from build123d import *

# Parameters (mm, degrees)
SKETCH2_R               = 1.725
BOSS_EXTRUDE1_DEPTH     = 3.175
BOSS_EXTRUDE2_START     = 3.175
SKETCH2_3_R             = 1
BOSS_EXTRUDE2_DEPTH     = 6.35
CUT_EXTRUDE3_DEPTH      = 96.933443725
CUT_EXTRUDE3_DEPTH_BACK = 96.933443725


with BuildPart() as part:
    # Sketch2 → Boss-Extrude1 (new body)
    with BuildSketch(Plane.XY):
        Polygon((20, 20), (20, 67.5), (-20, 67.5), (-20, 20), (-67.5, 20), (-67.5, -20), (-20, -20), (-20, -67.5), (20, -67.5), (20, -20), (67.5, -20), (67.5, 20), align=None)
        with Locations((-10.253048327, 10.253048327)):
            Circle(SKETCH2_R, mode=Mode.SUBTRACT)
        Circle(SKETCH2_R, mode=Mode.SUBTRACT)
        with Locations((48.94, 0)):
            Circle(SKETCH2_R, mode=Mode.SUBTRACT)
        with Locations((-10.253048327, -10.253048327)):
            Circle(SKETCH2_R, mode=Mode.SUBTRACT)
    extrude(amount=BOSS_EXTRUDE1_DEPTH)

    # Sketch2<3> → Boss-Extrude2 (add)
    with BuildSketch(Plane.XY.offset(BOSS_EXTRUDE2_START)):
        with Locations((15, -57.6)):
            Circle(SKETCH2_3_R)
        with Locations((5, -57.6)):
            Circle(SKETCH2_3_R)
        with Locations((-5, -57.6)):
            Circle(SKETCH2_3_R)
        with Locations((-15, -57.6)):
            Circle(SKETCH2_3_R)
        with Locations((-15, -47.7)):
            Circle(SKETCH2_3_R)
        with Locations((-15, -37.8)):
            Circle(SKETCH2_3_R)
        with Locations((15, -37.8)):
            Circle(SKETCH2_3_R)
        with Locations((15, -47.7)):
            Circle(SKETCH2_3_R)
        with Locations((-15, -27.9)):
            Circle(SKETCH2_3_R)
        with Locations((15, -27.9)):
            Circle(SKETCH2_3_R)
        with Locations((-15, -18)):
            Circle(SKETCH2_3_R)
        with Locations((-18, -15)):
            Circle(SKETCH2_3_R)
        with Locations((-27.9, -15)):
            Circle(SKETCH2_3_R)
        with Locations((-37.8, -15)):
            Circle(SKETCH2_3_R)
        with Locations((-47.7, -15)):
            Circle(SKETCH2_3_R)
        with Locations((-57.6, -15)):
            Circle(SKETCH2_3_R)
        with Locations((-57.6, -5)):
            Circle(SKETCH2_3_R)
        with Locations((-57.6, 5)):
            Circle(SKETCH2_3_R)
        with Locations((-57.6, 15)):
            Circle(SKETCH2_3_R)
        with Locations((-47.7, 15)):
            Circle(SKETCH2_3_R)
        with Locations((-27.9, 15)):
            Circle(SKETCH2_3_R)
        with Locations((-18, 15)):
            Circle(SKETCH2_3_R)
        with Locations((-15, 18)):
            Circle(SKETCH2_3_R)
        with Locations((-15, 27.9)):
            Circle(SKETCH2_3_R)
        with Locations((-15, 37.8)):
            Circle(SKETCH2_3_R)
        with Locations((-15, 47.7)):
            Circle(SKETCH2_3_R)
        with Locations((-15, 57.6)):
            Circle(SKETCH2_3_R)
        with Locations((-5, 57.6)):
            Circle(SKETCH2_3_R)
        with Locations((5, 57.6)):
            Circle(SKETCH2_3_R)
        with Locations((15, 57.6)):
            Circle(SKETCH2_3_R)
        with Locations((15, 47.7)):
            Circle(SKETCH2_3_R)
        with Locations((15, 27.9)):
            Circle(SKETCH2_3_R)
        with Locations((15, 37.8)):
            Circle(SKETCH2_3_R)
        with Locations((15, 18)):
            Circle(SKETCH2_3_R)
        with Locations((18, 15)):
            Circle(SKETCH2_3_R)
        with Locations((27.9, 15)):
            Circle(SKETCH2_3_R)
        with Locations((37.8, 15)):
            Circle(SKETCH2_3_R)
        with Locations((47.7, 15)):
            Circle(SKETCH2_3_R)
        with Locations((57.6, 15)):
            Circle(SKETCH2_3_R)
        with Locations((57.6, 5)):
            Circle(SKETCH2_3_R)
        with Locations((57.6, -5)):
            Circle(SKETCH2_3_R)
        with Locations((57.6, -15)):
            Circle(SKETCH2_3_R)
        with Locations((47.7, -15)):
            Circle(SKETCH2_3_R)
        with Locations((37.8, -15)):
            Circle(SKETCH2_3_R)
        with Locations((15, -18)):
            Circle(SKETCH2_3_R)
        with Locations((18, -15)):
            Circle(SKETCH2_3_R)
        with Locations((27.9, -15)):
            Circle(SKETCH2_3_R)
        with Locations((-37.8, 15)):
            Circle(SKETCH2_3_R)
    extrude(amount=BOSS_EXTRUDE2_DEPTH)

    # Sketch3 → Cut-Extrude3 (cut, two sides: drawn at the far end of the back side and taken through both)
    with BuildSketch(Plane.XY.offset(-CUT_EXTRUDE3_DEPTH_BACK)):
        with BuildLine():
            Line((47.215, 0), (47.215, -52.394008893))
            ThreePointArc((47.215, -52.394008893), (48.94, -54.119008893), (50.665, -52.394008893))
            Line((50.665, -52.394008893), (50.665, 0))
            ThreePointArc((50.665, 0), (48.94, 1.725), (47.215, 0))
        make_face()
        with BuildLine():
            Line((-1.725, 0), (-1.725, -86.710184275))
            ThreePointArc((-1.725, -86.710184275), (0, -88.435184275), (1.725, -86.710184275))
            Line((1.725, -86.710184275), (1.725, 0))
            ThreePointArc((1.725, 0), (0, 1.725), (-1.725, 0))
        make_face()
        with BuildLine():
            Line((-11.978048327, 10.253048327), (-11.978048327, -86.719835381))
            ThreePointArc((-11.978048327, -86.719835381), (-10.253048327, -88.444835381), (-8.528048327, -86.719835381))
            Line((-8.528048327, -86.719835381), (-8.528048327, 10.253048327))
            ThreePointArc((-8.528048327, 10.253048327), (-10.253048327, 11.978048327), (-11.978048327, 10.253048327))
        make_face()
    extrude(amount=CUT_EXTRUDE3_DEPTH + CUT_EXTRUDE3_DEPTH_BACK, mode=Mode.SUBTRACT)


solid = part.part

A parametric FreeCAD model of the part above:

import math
import FreeCAD as App
import Part
import Sketcher
from FreeCAD import Vector
Q = App.Units.Quantity


def add_polygon(sketch, points):
    """Adds a closed chain of lines whose ends are joined by coincident constraints."""
    first, n = sketch.GeometryCount, len(points)
    for a, b in zip(points, points[1:] + points[:1]):
        sketch.addGeometry(Part.LineSegment(App.Vector(*a, 0), App.Vector(*b, 0)), False)
    for i in range(n):
        sketch.addConstraint(Sketcher.Constraint("Coincident", first + i, 2, first + (i + 1) % n, 1))

doc = App.newDocument("Part")
body = doc.addObject("PartDesign::Body", "Body")

# Sketch on XY plane
sketch1 = body.newObject("Sketcher::SketchObject", "Sketch")
sketch1.AttachmentSupport = (doc.getObject("XY_Plane"), [""])
sketch1.MapMode = "FlatFace"
add_polygon(sketch1, [(20, 20), (20, 67.5), (-20, 67.5), (-20, 20), (-67.5, 20), (-67.5, -20), (-20, -20), (-20, -67.5), (20, -67.5), (20, -20), (67.5, -20), (67.5, 20)])  # lines 0-11
sketch1.addGeometry(Part.Circle(Vector(-10.3, -10.3, 0), Vector(0, 0, 1), 1.7), False)  # 12
sketch1.addGeometry(Part.Circle(Vector(0, 0, 0), Vector(0, 0, 1), 1.7), False)  # 13
sketch1.addGeometry(Part.Circle(Vector(-10.3, 10.3, 0), Vector(0, 0, 1), 1.7), False)  # 14
sketch1.addGeometry(Part.Circle(Vector(48.9, 0, 0), Vector(0, 0, 1), 1.7), False)  # 15
sketch1.addConstraint(Sketcher.Constraint("Vertical", 0))
sketch1.addConstraint(Sketcher.Constraint("Horizontal", 1))
sketch1.addConstraint(Sketcher.Constraint("Vertical", 2))
sketch1.addConstraint(Sketcher.Constraint("Horizontal", 3))
sketch1.addConstraint(Sketcher.Constraint("Vertical", 4))
sketch1.addConstraint(Sketcher.Constraint("Horizontal", 5))
sketch1.addConstraint(Sketcher.Constraint("Vertical", 6))
sketch1.addConstraint(Sketcher.Constraint("Horizontal", 7))
sketch1.addConstraint(Sketcher.Constraint("Vertical", 8))
sketch1.addConstraint(Sketcher.Constraint("Horizontal", 9))
sketch1.addConstraint(Sketcher.Constraint("Vertical", 10))
sketch1.addConstraint(Sketcher.Constraint("Horizontal", 11))
sketch1.addConstraint(Sketcher.Constraint("Coincident", 13, 3, -1, 1))
sketch1.addConstraint(Sketcher.Constraint("Equal", 12, 13))
sketch1.addConstraint(Sketcher.Constraint("Equal", 13, 14))
sketch1.addConstraint(Sketcher.Constraint("Equal", 14, 15))
sketch1.addConstraint(Sketcher.Constraint("Symmetric", 0, 2, 6, 2, -1, 1))
sketch1.addConstraint(Sketcher.Constraint("Symmetric", 2, 2, 8, 2, -1, 1))
sketch1.addConstraint(Sketcher.Constraint("Symmetric", 4, 2, 10, 2, -1, 1))
sketch1.addConstraint(Sketcher.Constraint("Symmetric", 5, 2, 8, 2, -2))
sketch1.addConstraint(Sketcher.Constraint("Symmetric", 12, 3, 14, 3, -1))
sketch1.addConstraint(Sketcher.Constraint("PointOnObject", 15, 3, -1))
sketch1.addConstraint(Sketcher.Constraint("Equal", 11, 0))
sketch1.addConstraint(Sketcher.Constraint("Equal", 7, 4))
sketch1.addConstraint(Sketcher.Constraint("Diameter", 12, Q("3.45 mm")))
sketch1.addConstraint(Sketcher.Constraint("DistanceX", 1, 2, 1, 1, Q("40 mm")))
sketch1.addConstraint(Sketcher.Constraint("DistanceX", 3, 2, 3, 1, Q("47.5 mm")))
sketch1.addConstraint(Sketcher.Constraint("DistanceX", -1, 1, 15, 3, Q("48.94 mm")))
sketch1.addConstraint(Sketcher.Constraint("DistanceX", 12, 3, -1, 1, Q("10.253048 mm")))
sketch1.addConstraint(Sketcher.Constraint("DistanceY", 12, 3, -1, 1, Q("10.253048 mm")))
pad1 = body.newObject("PartDesign::Pad", "Pad")
pad1.Profile = sketch1
pad1.Length = 3.175

# Sketch on XY plane
sketch2 = body.newObject("Sketcher::SketchObject", "Sketch001")
sketch2.AttachmentSupport = (doc.getObject("XY_Plane"), [""])
sketch2.MapMode = "FlatFace"
sketch2.AttachmentOffset = App.Placement(Vector(0, 0, 3.175), App.Rotation())
sketch2.addGeometry(Part.Circle(Vector(15, -57.6, 0), Vector(0, 0, 1), 1), False)
sketch2.addGeometry(Part.Circle(Vector(5, -57.6, 0), Vector(0, 0, 1), 1), False)
sketch2.addGeometry(Part.Circle(Vector(-5, -57.6, 0), Vector(0, 0, 1), 1), False)
sketch2.addGeometry(Part.Circle(Vector(-15, -57.6, 0), Vector(0, 0, 1), 1), False)
sketch2.addGeometry(Part.Circle(Vector(-15, -47.7, 0), Vector(0, 0, 1), 1), False)
sketch2.addGeometry(Part.Circle(Vector(-15, -37.8, 0), Vector(0, 0, 1), 1), False)
sketch2.addGeometry(Part.Circle(Vector(15, -37.8, 0), Vector(0, 0, 1), 1), False)
sketch2.addGeometry(Part.Circle(Vector(15, -47.7, 0), Vector(0, 0, 1), 1), False)
sketch2.addGeometry(Part.Circle(Vector(-15, -27.9, 0), Vector(0, 0, 1), 1), False)
sketch2.addGeometry(Part.Circle(Vector(15, -27.9, 0), Vector(0, 0, 1), 1), False)
sketch2.addGeometry(Part.Circle(Vector(-15, -18, 0), Vector(0, 0, 1), 1), False)
sketch2.addGeometry(Part.Circle(Vector(-18, -15, 0), Vector(0, 0, 1), 1), False)
sketch2.addGeometry(Part.Circle(Vector(-27.9, -15, 0), Vector(0, 0, 1), 1), False)
sketch2.addGeometry(Part.Circle(Vector(-37.8, -15, 0), Vector(0, 0, 1), 1), False)
sketch2.addGeometry(Part.Circle(Vector(-47.7, -15, 0), Vector(0, 0, 1), 1), False)
sketch2.addGeometry(Part.Circle(Vector(-57.6, -15, 0), Vector(0, 0, 1), 1), False)
sketch2.addGeometry(Part.Circle(Vector(-57.6, -5, 0), Vector(0, 0, 1), 1), False)
sketch2.addGeometry(Part.Circle(Vector(-57.6, 5, 0), Vector(0, 0, 1), 1), False)
sketch2.addGeometry(Part.Circle(Vector(-57.6, 15, 0), Vector(0, 0, 1), 1), False)
sketch2.addGeometry(Part.Circle(Vector(-47.7, 15, 0), Vector(0, 0, 1), 1), False)
sketch2.addGeometry(Part.Circle(Vector(-27.9, 15, 0), Vector(0, 0, 1), 1), False)
sketch2.addGeometry(Part.Circle(Vector(-18, 15, 0), Vector(0, 0, 1), 1), False)
sketch2.addGeometry(Part.Circle(Vector(-15, 18, 0), Vector(0, 0, 1), 1), False)
sketch2.addGeometry(Part.Circle(Vector(-15, 27.9, 0), Vector(0, 0, 1), 1), False)
sketch2.addGeometry(Part.Circle(Vector(-15, 37.8, 0), Vector(0, 0, 1), 1), False)
sketch2.addGeometry(Part.Circle(Vector(-15, 47.7, 0), Vector(0, 0, 1), 1), False)
sketch2.addGeometry(Part.Circle(Vector(-15, 57.6, 0), Vector(0, 0, 1), 1), False)
sketch2.addGeometry(Part.Circle(Vector(-5, 57.6, 0), Vector(0, 0, 1), 1), False)
sketch2.addGeometry(Part.Circle(Vector(5, 57.6, 0), Vector(0, 0, 1), 1), False)
sketch2.addGeometry(Part.Circle(Vector(15, 57.6, 0), Vector(0, 0, 1), 1), False)
sketch2.addGeometry(Part.Circle(Vector(15, 47.7, 0), Vector(0, 0, 1), 1), False)
sketch2.addGeometry(Part.Circle(Vector(15, 27.9, 0), Vector(0, 0, 1), 1), False)
sketch2.addGeometry(Part.Circle(Vector(15, 37.8, 0), Vector(0, 0, 1), 1), False)
sketch2.addGeometry(Part.Circle(Vector(15, 18, 0), Vector(0, 0, 1), 1), False)
sketch2.addGeometry(Part.Circle(Vector(18, 15, 0), Vector(0, 0, 1), 1), False)
sketch2.addGeometry(Part.Circle(Vector(27.9, 15, 0), Vector(0, 0, 1), 1), False)
sketch2.addGeometry(Part.Circle(Vector(37.8, 15, 0), Vector(0, 0, 1), 1), False)
sketch2.addGeometry(Part.Circle(Vector(47.7, 15, 0), Vector(0, 0, 1), 1), False)
sketch2.addGeometry(Part.Circle(Vector(57.6, 15, 0), Vector(0, 0, 1), 1), False)
sketch2.addGeometry(Part.Circle(Vector(57.6, 5, 0), Vector(0, 0, 1), 1), False)
sketch2.addGeometry(Part.Circle(Vector(57.6, -5, 0), Vector(0, 0, 1), 1), False)
sketch2.addGeometry(Part.Circle(Vector(57.6, -15, 0), Vector(0, 0, 1), 1), False)
sketch2.addGeometry(Part.Circle(Vector(47.7, -15, 0), Vector(0, 0, 1), 1), False)
sketch2.addGeometry(Part.Circle(Vector(37.8, -15, 0), Vector(0, 0, 1), 1), False)
sketch2.addGeometry(Part.Circle(Vector(15, -18, 0), Vector(0, 0, 1), 1), False)
sketch2.addGeometry(Part.Circle(Vector(18, -15, 0), Vector(0, 0, 1), 1), False)
sketch2.addGeometry(Part.Circle(Vector(27.9, -15, 0), Vector(0, 0, 1), 1), False)
sketch2.addGeometry(Part.Circle(Vector(-37.8, 15, 0), Vector(0, 0, 1), 1), False)
sketch2.addConstraint(Sketcher.Constraint("Equal", 0, 1))
sketch2.addConstraint(Sketcher.Constraint("Equal", 1, 2))
sketch2.addConstraint(Sketcher.Constraint("Equal", 2, 3))
sketch2.addConstraint(Sketcher.Constraint("Equal", 3, 4))
sketch2.addConstraint(Sketcher.Constraint("Equal", 4, 5))
sketch2.addConstraint(Sketcher.Constraint("Equal", 5, 6))
sketch2.addConstraint(Sketcher.Constraint("Equal", 6, 7))
sketch2.addConstraint(Sketcher.Constraint("Equal", 7, 8))
sketch2.addConstraint(Sketcher.Constraint("Equal", 8, 9))
sketch2.addConstraint(Sketcher.Constraint("Equal", 9, 10))
sketch2.addConstraint(Sketcher.Constraint("Equal", 10, 11))
sketch2.addConstraint(Sketcher.Constraint("Equal", 11, 12))
sketch2.addConstraint(Sketcher.Constraint("Equal", 12, 13))
sketch2.addConstraint(Sketcher.Constraint("Equal", 13, 14))
sketch2.addConstraint(Sketcher.Constraint("Equal", 14, 15))
sketch2.addConstraint(Sketcher.Constraint("Equal", 15, 16))
sketch2.addConstraint(Sketcher.Constraint("Equal", 16, 17))
sketch2.addConstraint(Sketcher.Constraint("Equal", 17, 18))
sketch2.addConstraint(Sketcher.Constraint("Equal", 18, 19))
sketch2.addConstraint(Sketcher.Constraint("Equal", 19, 20))
sketch2.addConstraint(Sketcher.Constraint("Equal", 20, 21))
sketch2.addConstraint(Sketcher.Constraint("Equal", 21, 22))
sketch2.addConstraint(Sketcher.Constraint("Equal", 22, 23))
sketch2.addConstraint(Sketcher.Constraint("Equal", 23, 24))
sketch2.addConstraint(Sketcher.Constraint("Equal", 24, 25))
sketch2.addConstraint(Sketcher.Constraint("Equal", 25, 26))
sketch2.addConstraint(Sketcher.Constraint("Equal", 26, 27))
sketch2.addConstraint(Sketcher.Constraint("Equal", 27, 28))
sketch2.addConstraint(Sketcher.Constraint("Equal", 28, 29))
sketch2.addConstraint(Sketcher.Constraint("Equal", 29, 30))
sketch2.addConstraint(Sketcher.Constraint("Equal", 30, 31))
sketch2.addConstraint(Sketcher.Constraint("Equal", 31, 32))
sketch2.addConstraint(Sketcher.Constraint("Equal", 32, 33))
sketch2.addConstraint(Sketcher.Constraint("Equal", 33, 34))
sketch2.addConstraint(Sketcher.Constraint("Equal", 34, 35))
sketch2.addConstraint(Sketcher.Constraint("Equal", 35, 36))
sketch2.addConstraint(Sketcher.Constraint("Equal", 36, 37))
sketch2.addConstraint(Sketcher.Constraint("Equal", 37, 38))
sketch2.addConstraint(Sketcher.Constraint("Equal", 38, 39))
sketch2.addConstraint(Sketcher.Constraint("Equal", 39, 40))
sketch2.addConstraint(Sketcher.Constraint("Equal", 40, 41))
sketch2.addConstraint(Sketcher.Constraint("Equal", 41, 42))
sketch2.addConstraint(Sketcher.Constraint("Equal", 42, 43))
sketch2.addConstraint(Sketcher.Constraint("Equal", 43, 44))
sketch2.addConstraint(Sketcher.Constraint("Equal", 44, 45))
sketch2.addConstraint(Sketcher.Constraint("Equal", 45, 46))
sketch2.addConstraint(Sketcher.Constraint("Equal", 46, 47))
sketch2.addConstraint(Sketcher.Constraint("Symmetric", 9, 3, 23, 3, -1, 1))
sketch2.addConstraint(Sketcher.Constraint("Symmetric", 6, 3, 24, 3, -1, 1))
sketch2.addConstraint(Sketcher.Constraint("Symmetric", 7, 3, 25, 3, -1, 1))
sketch2.addConstraint(Sketcher.Constraint("Symmetric", 0, 3, 26, 3, -1, 1))
sketch2.addConstraint(Sketcher.Constraint("Symmetric", 1, 3, 27, 3, -1, 1))
sketch2.addConstraint(Sketcher.Constraint("Symmetric", 2, 3, 28, 3, -1, 1))
sketch2.addConstraint(Sketcher.Constraint("Symmetric", 3, 3, 29, 3, -1, 1))
sketch2.addConstraint(Sketcher.Constraint("Symmetric", 4, 3, 30, 3, -1, 1))
sketch2.addConstraint(Sketcher.Constraint("Symmetric", 8, 3, 31, 3, -1, 1))
sketch2.addConstraint(Sketcher.Constraint("Symmetric", 5, 3, 32, 3, -1, 1))
sketch2.addConstraint(Sketcher.Constraint("Symmetric", 10, 3, 33, 3, -1, 1))
sketch2.addConstraint(Sketcher.Constraint("Symmetric", 11, 3, 34, 3, -1, 1))
sketch2.addConstraint(Sketcher.Constraint("Symmetric", 12, 3, 35, 3, -1, 1))
sketch2.addConstraint(Sketcher.Constraint("Symmetric", 13, 3, 36, 3, -1, 1))
sketch2.addConstraint(Sketcher.Constraint("Symmetric", 14, 3, 37, 3, -1, 1))
sketch2.addConstraint(Sketcher.Constraint("Symmetric", 15, 3, 38, 3, -1, 1))
sketch2.addConstraint(Sketcher.Constraint("Symmetric", 16, 3, 39, 3, -1, 1))
sketch2.addConstraint(Sketcher.Constraint("Symmetric", 17, 3, 40, 3, -1, 1))
sketch2.addConstraint(Sketcher.Constraint("Symmetric", 18, 3, 41, 3, -1, 1))
sketch2.addConstraint(Sketcher.Constraint("Symmetric", 19, 3, 42, 3, -1, 1))
sketch2.addConstraint(Sketcher.Constraint("Symmetric", 22, 3, 44, 3, -1, 1))
sketch2.addConstraint(Sketcher.Constraint("Symmetric", 21, 3, 45, 3, -1, 1))
sketch2.addConstraint(Sketcher.Constraint("Symmetric", 20, 3, 46, 3, -1, 1))
sketch2.addConstraint(Sketcher.Constraint("Symmetric", 43, 3, 47, 3, -1, 1))
sketch2.addConstraint(Sketcher.Constraint("Symmetric", 1, 3, 2, 3, -2))
sketch2.addConstraint(Sketcher.Constraint("Symmetric", 0, 3, 3, 3, -2))
sketch2.addConstraint(Sketcher.Constraint("Symmetric", 5, 3, 6, 3, -2))
sketch2.addConstraint(Sketcher.Constraint("Symmetric", 4, 3, 7, 3, -2))
sketch2.addConstraint(Sketcher.Constraint("Symmetric", 8, 3, 9, 3, -2))
sketch2.addConstraint(Sketcher.Constraint("Symmetric", 22, 3, 33, 3, -2))
sketch2.addConstraint(Sketcher.Constraint("Symmetric", 21, 3, 34, 3, -2))
sketch2.addConstraint(Sketcher.Constraint("Symmetric", 20, 3, 35, 3, -2))
sketch2.addConstraint(Sketcher.Constraint("Symmetric", 19, 3, 37, 3, -2))
sketch2.addConstraint(Sketcher.Constraint("Symmetric", 18, 3, 38, 3, -2))
sketch2.addConstraint(Sketcher.Constraint("Symmetric", 17, 3, 39, 3, -2))
sketch2.addConstraint(Sketcher.Constraint("Symmetric", 13, 3, 43, 3, -2))
sketch2.addConstraint(Sketcher.Constraint("Horizontal", 0, 3, 1, 3))
sketch2.addConstraint(Sketcher.Constraint("Horizontal", 11, 3, 12, 3))
sketch2.addConstraint(Sketcher.Constraint("Horizontal", 12, 3, 13, 3))
sketch2.addConstraint(Sketcher.Constraint("Horizontal", 13, 3, 14, 3))
sketch2.addConstraint(Sketcher.Constraint("Horizontal", 14, 3, 15, 3))
sketch2.addConstraint(Sketcher.Constraint("Vertical", 3, 3, 4, 3))
sketch2.addConstraint(Sketcher.Constraint("Vertical", 4, 3, 5, 3))
sketch2.addConstraint(Sketcher.Constraint("Vertical", 5, 3, 8, 3))
sketch2.addConstraint(Sketcher.Constraint("Vertical", 8, 3, 10, 3))
sketch2.addConstraint(Sketcher.Constraint("Vertical", 15, 3, 16, 3))
sketch2.addConstraint(Sketcher.Constraint("Diameter", 0, Q("2 mm")))
sketch2.addConstraint(Sketcher.Constraint("DistanceX", -1, 1, 0, 3, Q("15 mm")))
sketch2.addConstraint(Sketcher.Constraint("DistanceX", -1, 1, 1, 3, Q("5 mm")))
sketch2.addConstraint(Sketcher.Constraint("DistanceY", 10, 3, -1, 1, Q("18 mm")))
sketch2.addConstraint(Sketcher.Constraint("DistanceX", 11, 3, -1, 1, Q("18 mm")))
sketch2.addConstraint(Sketcher.Constraint("DistanceY", 11, 3, -1, 1, Q("15 mm")))
sketch2.addConstraint(Sketcher.Constraint("DistanceY", 16, 3, -1, 1, Q("5 mm")))
sketch2.addConstraint(Sketcher.Constraint("DistanceY", 0, 3, -1, 1, Q("57.6 mm")))
sketch2.addConstraint(Sketcher.Constraint("DistanceY", 4, 3, -1, 1, Q("47.7 mm")))
sketch2.addConstraint(Sketcher.Constraint("DistanceY", 5, 3, -1, 1, Q("37.8 mm")))
sketch2.addConstraint(Sketcher.Constraint("DistanceY", 8, 3, -1, 1, Q("27.9 mm")))
sketch2.addConstraint(Sketcher.Constraint("DistanceX", 12, 3, -1, 1, Q("27.9 mm")))
sketch2.addConstraint(Sketcher.Constraint("DistanceX", 13, 3, -1, 1, Q("37.8 mm")))
sketch2.addConstraint(Sketcher.Constraint("DistanceX", 14, 3, -1, 1, Q("47.7 mm")))
sketch2.addConstraint(Sketcher.Constraint("DistanceX", 15, 3, -1, 1, Q("57.6 mm")))
pad2 = body.newObject("PartDesign::Pad", "Pad001")
pad2.Profile = sketch2
pad2.Length = 6.35

# Sketch on XY plane
sketch3 = body.newObject("Sketcher::SketchObject", "Sketch002")
sketch3.AttachmentSupport = (doc.getObject("XY_Plane"), [""])
sketch3.MapMode = "FlatFace"
sketch3.addGeometry(Part.LineSegment(Vector(47.2, 0, 0), Vector(47.2, -52.4, 0)), False)
sketch3.addGeometry(Part.ArcOfCircle(Part.Circle(Vector(48.9, -52.4, 0), Vector(0, 0, 1), 1.7), math.radians(180), math.radians(360)), False)
sketch3.addGeometry(Part.LineSegment(Vector(50.7, -52.4, 0), Vector(50.7, 0, 0)), False)
sketch3.addGeometry(Part.ArcOfCircle(Part.Circle(Vector(48.9, 0, 0), Vector(0, 0, 1), 1.7), math.radians(0), math.radians(180)), False)
sketch3.addGeometry(Part.LineSegment(Vector(-1.7, 0, 0), Vector(-1.7, -86.7, 0)), False)
sketch3.addGeometry(Part.ArcOfCircle(Part.Circle(Vector(0, -86.7, 0), Vector(0, 0, 1), 1.7), math.radians(180), math.radians(360)), False)
sketch3.addGeometry(Part.LineSegment(Vector(1.7, -86.7, 0), Vector(1.7, 0, 0)), False)
sketch3.addGeometry(Part.ArcOfCircle(Part.Circle(Vector(0, 0, 0), Vector(0, 0, 1), 1.7), math.radians(0), math.radians(180)), False)
sketch3.addGeometry(Part.LineSegment(Vector(-12, 10.3, 0), Vector(-12, -86.7, 0)), False)
sketch3.addGeometry(Part.ArcOfCircle(Part.Circle(Vector(-10.3, -86.7, 0), Vector(0, 0, 1), 1.7), math.radians(180), math.radians(360)), False)
sketch3.addGeometry(Part.LineSegment(Vector(-8.5, -86.7, 0), Vector(-8.5, 10.3, 0)), False)
sketch3.addGeometry(Part.ArcOfCircle(Part.Circle(Vector(-10.3, 10.3, 0), Vector(0, 0, 1), 1.7), math.radians(0), math.radians(180)), False)
sketch3.addConstraint(Sketcher.Constraint("Tangent", 0, 2, 1, 1))
sketch3.addConstraint(Sketcher.Constraint("Tangent", 1, 2, 2, 1))
sketch3.addConstraint(Sketcher.Constraint("Tangent", 2, 2, 3, 1))
sketch3.addConstraint(Sketcher.Constraint("Tangent", 3, 2, 0, 1))
sketch3.addConstraint(Sketcher.Constraint("Tangent", 4, 2, 5, 1))
sketch3.addConstraint(Sketcher.Constraint("Tangent", 5, 2, 6, 1))
sketch3.addConstraint(Sketcher.Constraint("Tangent", 6, 2, 7, 1))
sketch3.addConstraint(Sketcher.Constraint("Tangent", 7, 2, 4, 1))
sketch3.addConstraint(Sketcher.Constraint("Tangent", 8, 2, 9, 1))
sketch3.addConstraint(Sketcher.Constraint("Tangent", 9, 2, 10, 1))
sketch3.addConstraint(Sketcher.Constraint("Tangent", 10, 2, 11, 1))
sketch3.addConstraint(Sketcher.Constraint("Tangent", 11, 2, 8, 1))
sketch3.addConstraint(Sketcher.Constraint("Vertical", 0))
sketch3.addConstraint(Sketcher.Constraint("Vertical", 2))
sketch3.addConstraint(Sketcher.Constraint("Vertical", 4))
sketch3.addConstraint(Sketcher.Constraint("Vertical", 6))
sketch3.addConstraint(Sketcher.Constraint("Vertical", 8))
sketch3.addConstraint(Sketcher.Constraint("Vertical", 10))
sketch3.addConstraint(Sketcher.Constraint("Coincident", 7, 3, -1, 1))
sketch3.addConstraint(Sketcher.Constraint("Equal", 3, 5))
sketch3.addConstraint(Sketcher.Constraint("Equal", 7, 9))
sketch3.addConstraint(Sketcher.Constraint("PointOnObject", 3, 3, -1))
sketch3.addConstraint(Sketcher.Constraint("Radius", 1, Q("1.725 mm")))
sketch3.addConstraint(Sketcher.Constraint("DistanceX", -1, 1, 1, 3, Q("48.94 mm")))
sketch3.addConstraint(Sketcher.Constraint("DistanceY", 0, 2, 0, 1, Q("52.394009 mm")))
sketch3.addConstraint(Sketcher.Constraint("DistanceY", 4, 2, 4, 1, Q("86.710184 mm")))
sketch3.addConstraint(Sketcher.Constraint("DistanceY", 8, 2, 8, 1, Q("96.972884 mm")))
sketch3.addConstraint(Sketcher.Constraint("DistanceX", 9, 3, -1, 1, Q("10.253048 mm")))
sketch3.addConstraint(Sketcher.Constraint("DistanceY", -1, 1, 11, 3, Q("10.253048 mm")))
pocket1 = body.newObject("PartDesign::Pocket", "Pocket")
pocket1.Profile = sketch3
pocket1.Type = "ThroughAll"
pocket1.Midplane = True

doc.recompute()
